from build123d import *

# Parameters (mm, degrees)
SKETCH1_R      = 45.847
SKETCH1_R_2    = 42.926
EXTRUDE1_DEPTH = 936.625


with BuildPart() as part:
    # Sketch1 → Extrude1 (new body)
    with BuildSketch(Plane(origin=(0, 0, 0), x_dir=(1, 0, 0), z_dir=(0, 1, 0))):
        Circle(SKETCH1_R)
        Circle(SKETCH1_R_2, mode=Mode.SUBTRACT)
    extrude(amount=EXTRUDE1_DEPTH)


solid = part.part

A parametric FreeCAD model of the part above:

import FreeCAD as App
import Part
import Sketcher
from FreeCAD import Vector
Q = App.Units.Quantity

doc = App.newDocument("Part")
body = doc.addObject("PartDesign::Body", "Body")

sketch1 = body.newObject("Sketcher::SketchObject", "Sketch")
sketch1.AttachmentSupport = (doc.getObject("XZ_Plane"), [""])
sketch1.MapMode = "FlatFace"
sketch1.addGeometry(Part.Circle(Vector(0, 0, 0), Vector(0, 0, 1), 45.847), False)
sketch1.addGeometry(Part.Circle(Vector(0, 0, 0), Vector(0, 0, 1), 42.926), False)
sketch1.addConstraint(Sketcher.Constraint("Coincident", 0, 3, -1, 1))
sketch1.addConstraint(Sketcher.Constraint("Coincident", 1, 3, -1, 1))
sketch1.addConstraint(Sketcher.Constraint("Diameter", 0, Q("3.61 in")))
sketch1.addConstraint(Sketcher.Constraint("Diameter", 1, Q("3.38 in")))
pad1 = body.newObject("PartDesign::Pad", "Pad")
pad1.Profile = sketch1
pad1.Length = Q("36.875 in")
pad1.Reversed = True

doc.recompute()
